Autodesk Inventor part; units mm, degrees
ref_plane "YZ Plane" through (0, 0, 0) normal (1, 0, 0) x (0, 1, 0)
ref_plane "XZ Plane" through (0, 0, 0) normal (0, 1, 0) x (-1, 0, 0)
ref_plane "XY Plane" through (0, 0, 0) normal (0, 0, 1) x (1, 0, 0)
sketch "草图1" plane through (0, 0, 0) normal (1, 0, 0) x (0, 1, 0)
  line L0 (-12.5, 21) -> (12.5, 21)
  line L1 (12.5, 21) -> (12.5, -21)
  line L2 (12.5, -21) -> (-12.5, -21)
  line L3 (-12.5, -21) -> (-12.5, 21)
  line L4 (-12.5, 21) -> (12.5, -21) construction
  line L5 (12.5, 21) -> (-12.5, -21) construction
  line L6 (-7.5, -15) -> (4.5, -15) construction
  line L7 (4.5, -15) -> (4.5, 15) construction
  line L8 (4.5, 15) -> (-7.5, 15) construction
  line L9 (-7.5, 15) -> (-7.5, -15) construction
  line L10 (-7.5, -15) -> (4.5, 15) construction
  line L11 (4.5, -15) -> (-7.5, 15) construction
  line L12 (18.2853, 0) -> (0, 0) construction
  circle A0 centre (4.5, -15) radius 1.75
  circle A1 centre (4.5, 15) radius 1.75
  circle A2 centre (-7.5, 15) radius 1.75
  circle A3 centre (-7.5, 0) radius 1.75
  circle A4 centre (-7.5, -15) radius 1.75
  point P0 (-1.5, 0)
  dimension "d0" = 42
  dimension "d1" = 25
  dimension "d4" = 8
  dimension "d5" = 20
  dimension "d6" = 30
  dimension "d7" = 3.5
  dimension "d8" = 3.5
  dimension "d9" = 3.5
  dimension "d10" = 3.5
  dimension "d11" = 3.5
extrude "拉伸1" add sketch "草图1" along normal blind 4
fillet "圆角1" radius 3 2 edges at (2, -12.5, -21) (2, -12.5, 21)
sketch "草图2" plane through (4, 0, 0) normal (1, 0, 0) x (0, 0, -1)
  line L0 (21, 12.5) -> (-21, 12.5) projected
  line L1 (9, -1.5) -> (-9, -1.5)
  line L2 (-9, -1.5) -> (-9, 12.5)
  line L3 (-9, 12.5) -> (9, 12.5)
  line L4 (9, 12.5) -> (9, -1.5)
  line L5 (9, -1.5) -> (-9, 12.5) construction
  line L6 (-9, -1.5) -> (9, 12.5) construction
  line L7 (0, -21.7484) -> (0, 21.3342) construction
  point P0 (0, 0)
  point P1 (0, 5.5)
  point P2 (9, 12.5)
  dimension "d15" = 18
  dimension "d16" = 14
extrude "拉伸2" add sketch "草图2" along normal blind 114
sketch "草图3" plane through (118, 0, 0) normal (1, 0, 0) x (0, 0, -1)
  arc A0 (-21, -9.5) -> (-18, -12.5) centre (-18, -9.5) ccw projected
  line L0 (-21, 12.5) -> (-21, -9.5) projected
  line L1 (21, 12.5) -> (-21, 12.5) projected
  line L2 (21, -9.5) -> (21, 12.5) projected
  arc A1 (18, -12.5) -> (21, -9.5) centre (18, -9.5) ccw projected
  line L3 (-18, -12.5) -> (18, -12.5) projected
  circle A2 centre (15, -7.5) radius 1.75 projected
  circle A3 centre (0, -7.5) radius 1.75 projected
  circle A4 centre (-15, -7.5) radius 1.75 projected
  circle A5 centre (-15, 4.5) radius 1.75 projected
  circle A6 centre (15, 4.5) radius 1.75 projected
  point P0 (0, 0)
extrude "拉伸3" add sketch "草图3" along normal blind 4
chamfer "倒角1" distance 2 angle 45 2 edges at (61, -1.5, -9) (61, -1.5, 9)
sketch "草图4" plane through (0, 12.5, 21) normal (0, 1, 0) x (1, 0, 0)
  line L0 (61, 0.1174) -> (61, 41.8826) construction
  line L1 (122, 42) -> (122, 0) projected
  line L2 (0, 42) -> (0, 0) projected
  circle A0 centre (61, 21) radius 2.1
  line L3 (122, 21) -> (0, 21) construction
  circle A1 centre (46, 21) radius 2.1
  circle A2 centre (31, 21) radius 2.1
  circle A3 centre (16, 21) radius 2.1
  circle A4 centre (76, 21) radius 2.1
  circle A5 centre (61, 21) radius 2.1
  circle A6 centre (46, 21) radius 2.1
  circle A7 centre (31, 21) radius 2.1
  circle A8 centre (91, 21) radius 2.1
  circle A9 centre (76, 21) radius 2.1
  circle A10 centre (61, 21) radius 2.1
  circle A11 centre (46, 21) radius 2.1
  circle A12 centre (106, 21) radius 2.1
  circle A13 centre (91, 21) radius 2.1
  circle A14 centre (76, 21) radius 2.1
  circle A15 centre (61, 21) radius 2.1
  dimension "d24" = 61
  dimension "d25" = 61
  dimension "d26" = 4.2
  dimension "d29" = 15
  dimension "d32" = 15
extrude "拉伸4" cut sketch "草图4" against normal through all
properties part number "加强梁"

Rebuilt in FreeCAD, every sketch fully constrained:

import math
import FreeCAD as App
import Part
import Sketcher


def edges_at(feature, points):
    """Names of the edges that pass closest to the given points."""
    edges = feature.Shape.Edges
    near = lambda p: min(range(len(edges)), key=lambda i: edges[i].distToShape(Part.Vertex(*p))[0])
    return sorted({f"Edge{near(p) + 1}" for p in points})

doc = App.newDocument("Part")
body = doc.addObject("PartDesign::Body", "Body")

sketch1 = body.newObject("Sketcher::SketchObject", "Sketch")
sketch1.AttachmentSupport = (doc.getObject("YZ_Plane"), [""])
sketch1.MapMode = "FlatFace"
sketch1.addGeometry(Part.LineSegment(App.Vector(12.5, 21, 0), App.Vector(-12.5, 21, 0)), False)
sketch1.addGeometry(Part.LineSegment(App.Vector(-12.5, 21, 0), App.Vector(-12.5, -21, 0)), False)
sketch1.addGeometry(Part.LineSegment(App.Vector(-12.5, -21, 0), App.Vector(12.5, -21, 0)), False)
sketch1.addGeometry(Part.LineSegment(App.Vector(12.5, -21, 0), App.Vector(12.5, 21, 0)), False)
sketch1.addGeometry(Part.Circle(App.Vector(-7.5, -15, 0), App.Vector(0, 0, 1), 1.75), False)
sketch1.addGeometry(Part.Circle(App.Vector(4.5, -15, 0), App.Vector(0, 0, 1), 1.75), False)
sketch1.addGeometry(Part.Circle(App.Vector(-7.5, 0, 0), App.Vector(0, 0, 1), 1.75), False)
sketch1.addGeometry(Part.Circle(App.Vector(-7.5, 15, 0), App.Vector(0, 0, 1), 1.75), False)
sketch1.addGeometry(Part.Circle(App.Vector(4.5, 15, 0), App.Vector(0, 0, 1), 1.75), False)
sketch1.addConstraint(Sketcher.Constraint("Coincident", 0, 2, 1, 1))
sketch1.addConstraint(Sketcher.Constraint("Coincident", 1, 2, 2, 1))
sketch1.addConstraint(Sketcher.Constraint("Coincident", 2, 2, 3, 1))
sketch1.addConstraint(Sketcher.Constraint("Coincident", 3, 2, 0, 1))
sketch1.addConstraint(Sketcher.Constraint("Horizontal", 0))
sketch1.addConstraint(Sketcher.Constraint("Vertical", 1))
sketch1.addConstraint(Sketcher.Constraint("Horizontal", 2))
sketch1.addConstraint(Sketcher.Constraint("Vertical", 3))
sketch1.addConstraint(Sketcher.Constraint("Equal", 4, 5))
sketch1.addConstraint(Sketcher.Constraint("Equal", 5, 6))
sketch1.addConstraint(Sketcher.Constraint("Equal", 6, 7))
sketch1.addConstraint(Sketcher.Constraint("Equal", 7, 8))
sketch1.addConstraint(Sketcher.Constraint("Symmetric", 0, 2, 2, 2, -1, 1))
sketch1.addConstraint(Sketcher.Constraint("Symmetric", 4, 3, 7, 3, -1))
sketch1.addConstraint(Sketcher.Constraint("Symmetric", 5, 3, 8, 3, -1))
sketch1.addConstraint(Sketcher.Constraint("PointOnObject", 6, 3, -1))
sketch1.addConstraint(Sketcher.Constraint("Horizontal", 4, 3, 5, 3))
sketch1.addConstraint(Sketcher.Constraint("Vertical", 4, 3, 6, 3))
sketch1.addConstraint(Sketcher.Constraint("Diameter", 4, 3.5))
sketch1.addConstraint(Sketcher.Constraint("DistanceX", 0, 2, 0, 1, 25.0))
sketch1.addConstraint(Sketcher.Constraint("DistanceY", 1, 2, 1, 1, 42.0))
sketch1.addConstraint(Sketcher.Constraint("DistanceY", 4, 3, 7, 3, 30.0))
sketch1.addConstraint(Sketcher.Constraint("DistanceX", 5, 3, 2, 2, 8.0))
sketch1.addConstraint(Sketcher.Constraint("DistanceX", 4, 3, 2, 2, 20.0))
pad1 = body.newObject("PartDesign::Pad", "Pad")
pad1.Profile = sketch1
pad1.Length = 4
doc.recompute()

fillet = body.newObject("PartDesign::Fillet", "Fillet")
fillet.Base = (pad1, edges_at(pad1, [(2, -12.5, -21), (2, -12.5, 21)]))
fillet.Radius = 3

sketch2 = body.newObject("Sketcher::SketchObject", "Sketch001")
sketch2.AttachmentSupport = (doc.getObject("YZ_Plane"), [""])
sketch2.MapMode = "FlatFace"
sketch2.AttachmentOffset = App.Placement(App.Vector(0, 0, 4), App.Rotation())
sketch2.addGeometry(Part.LineSegment(App.Vector(-1.5, -9, 0), App.Vector(12.5, -9, 0)), False)
sketch2.addGeometry(Part.LineSegment(App.Vector(12.5, -9, 0), App.Vector(12.5, 9, 0)), False)
sketch2.addGeometry(Part.LineSegment(App.Vector(12.5, 9, 0), App.Vector(-1.5, 9, 0)), False)
sketch2.addGeometry(Part.LineSegment(App.Vector(-1.5, 9, 0), App.Vector(-1.5, -9, 0)), False)
sketch2.addConstraint(Sketcher.Constraint("Coincident", 0, 2, 1, 1))
sketch2.addConstraint(Sketcher.Constraint("Coincident", 1, 2, 2, 1))
sketch2.addConstraint(Sketcher.Constraint("Coincident", 2, 2, 3, 1))
sketch2.addConstraint(Sketcher.Constraint("Coincident", 3, 2, 0, 1))
sketch2.addConstraint(Sketcher.Constraint("Horizontal", 0))
sketch2.addConstraint(Sketcher.Constraint("Vertical", 1))
sketch2.addConstraint(Sketcher.Constraint("Horizontal", 2))
sketch2.addConstraint(Sketcher.Constraint("Vertical", 3))
sketch2.addConstraint(Sketcher.Constraint("DistanceX", 0, 1, 0, 2, 14.0))
sketch2.addConstraint(Sketcher.Constraint("DistanceY", 1, 1, 1, 2, 18.0))
sketch2.addConstraint(Sketcher.Constraint("DistanceY", 0, 2, -1, 1, 9.0))
sketch2.addConstraint(Sketcher.Constraint("DistanceX", -1, 1, 0, 2, 12.5))
pad2 = body.newObject("PartDesign::Pad", "Pad001")
pad2.Profile = sketch2
pad2.Length = 114

sketch3 = body.newObject("Sketcher::SketchObject", "Sketch002")
sketch3.AttachmentSupport = (doc.getObject("YZ_Plane"), [""])
sketch3.MapMode = "FlatFace"
sketch3.AttachmentOffset = App.Placement(App.Vector(0, 0, 118), App.Rotation())
sketch3.addGeometry(Part.LineSegment(App.Vector(12.5, 21, 0), App.Vector(-9.5, 21, 0)), False)
sketch3.addGeometry(Part.ArcOfCircle(Part.Circle(App.Vector(-9.5, 18, 0), App.Vector(0, 0, 1), 3), math.radians(90), math.radians(180)), False)
sketch3.addGeometry(Part.LineSegment(App.Vector(-12.5, 18, 0), App.Vector(-12.5, -18, 0)), False)
sketch3.addGeometry(Part.ArcOfCircle(Part.Circle(App.Vector(-9.5, -18, 0), App.Vector(0, 0, 1), 3), math.radians(180), math.radians(270)), False)
sketch3.addGeometry(Part.LineSegment(App.Vector(-9.5, -21, 0), App.Vector(12.5, -21, 0)), False)
sketch3.addGeometry(Part.LineSegment(App.Vector(12.5, -21, 0), App.Vector(12.5, 21, 0)), False)
sketch3.addGeometry(Part.Circle(App.Vector(-7.5, 15, 0), App.Vector(0, 0, 1), 1.75), False)
sketch3.addGeometry(Part.Circle(App.Vector(-7.5, 0, 0), App.Vector(0, 0, 1), 1.75), False)
sketch3.addGeometry(Part.Circle(App.Vector(-7.5, -15, 0), App.Vector(0, 0, 1), 1.75), False)
sketch3.addGeometry(Part.Circle(App.Vector(4.5, 15, 0), App.Vector(0, 0, 1), 1.75), False)
sketch3.addGeometry(Part.Circle(App.Vector(4.5, -15, 0), App.Vector(0, 0, 1), 1.75), False)
sketch3.addConstraint(Sketcher.Constraint("Tangent", 0, 2, 1, 1))
sketch3.addConstraint(Sketcher.Constraint("Tangent", 1, 2, 2, 1))
sketch3.addConstraint(Sketcher.Constraint("Tangent", 2, 2, 3, 1))
sketch3.addConstraint(Sketcher.Constraint("Tangent", 3, 2, 4, 1))
sketch3.addConstraint(Sketcher.Constraint("Coincident", 4, 2, 5, 1))
sketch3.addConstraint(Sketcher.Constraint("Coincident", 5, 2, 0, 1))
sketch3.addConstraint(Sketcher.Constraint("Horizontal", 0))
sketch3.addConstraint(Sketcher.Constraint("Vertical", 2))
sketch3.addConstraint(Sketcher.Constraint("Horizontal", 4))
sketch3.addConstraint(Sketcher.Constraint("Vertical", 5))
sketch3.addConstraint(Sketcher.Constraint("Equal", 1, 3))
sketch3.addConstraint(Sketcher.Constraint("Equal", 6, 7))
sketch3.addConstraint(Sketcher.Constraint("Equal", 7, 8))
sketch3.addConstraint(Sketcher.Constraint("Equal", 8, 9))
sketch3.addConstraint(Sketcher.Constraint("Equal", 9, 10))
sketch3.addConstraint(Sketcher.Constraint("Symmetric", 6, 3, 8, 3, -1))
sketch3.addConstraint(Sketcher.Constraint("Symmetric", 9, 3, 10, 3, -1))
sketch3.addConstraint(Sketcher.Constraint("PointOnObject", 7, 3, -1))
sketch3.addConstraint(Sketcher.Constraint("Horizontal", 6, 3, 9, 3))
sketch3.addConstraint(Sketcher.Constraint("Vertical", 6, 3, 7, 3))
sketch3.addConstraint(Sketcher.Constraint("Radius", 1, 3.0))
sketch3.addConstraint(Sketcher.Constraint("Diameter", 6, 3.5))
sketch3.addConstraint(Sketcher.Constraint("DistanceX", 0, 2, 0, 1, 22.0))
sketch3.addConstraint(Sketcher.Constraint("DistanceY", 2, 2, 2, 1, 36.0))
sketch3.addConstraint(Sketcher.Constraint("DistanceY", -1, 1, 1, 3, 18.0))
sketch3.addConstraint(Sketcher.Constraint("DistanceY", -1, 1, 6, 3, 15.0))
sketch3.addConstraint(Sketcher.Constraint("DistanceX", 1, 3, 6, 3, 2.0))
sketch3.addConstraint(Sketcher.Constraint("DistanceX", 6, 3, 9, 3, 12.0))
sketch3.addConstraint(Sketcher.Constraint("DistanceX", 1, 3, -1, 1, 9.5))
pad3 = body.newObject("PartDesign::Pad", "Pad002")
pad3.Profile = sketch3
pad3.Length = 4
doc.recompute()

chamfer = body.newObject("PartDesign::Chamfer", "Chamfer")
chamfer.Base = (pad3, edges_at(pad3, [(61, -1.5, -9), (61, -1.5, 9)]))
chamfer.Size = 2

sketch4 = body.newObject("Sketcher::SketchObject", "Sketch003")
sketch4.AttachmentSupport = (doc.getObject("XZ_Plane"), [""])
sketch4.MapMode = "FlatFace"
sketch4.AttachmentOffset = App.Placement(App.Vector(0, 0, -12.5), App.Rotation())
sketch4.addGeometry(Part.Circle(App.Vector(61, 0, 0), App.Vector(0, 0, 1), 2.1), False)
sketch4.addGeometry(Part.Circle(App.Vector(46, 0, 0), App.Vector(0, 0, 1), 2.1), False)
sketch4.addGeometry(Part.Circle(App.Vector(31, 0, 0), App.Vector(0, 0, 1), 2.1), False)
sketch4.addGeometry(Part.Circle(App.Vector(16, 0, 0), App.Vector(0, 0, 1), 2.1), False)
sketch4.addGeometry(Part.Circle(App.Vector(76, 0, 0), App.Vector(0, 0, 1), 2.1), False)
sketch4.addGeometry(Part.Circle(App.Vector(91, 0, 0), App.Vector(0, 0, 1), 2.1), False)
sketch4.addGeometry(Part.Circle(App.Vector(106, 0, 0), App.Vector(0, 0, 1), 2.1), False)
sketch4.addConstraint(Sketcher.Constraint("Equal", 0, 1))
sketch4.addConstraint(Sketcher.Constraint("Equal", 1, 2))
sketch4.addConstraint(Sketcher.Constraint("Equal", 2, 3))
sketch4.addConstraint(Sketcher.Constraint("Equal", 3, 4))
sketch4.addConstraint(Sketcher.Constraint("Equal", 4, 5))
sketch4.addConstraint(Sketcher.Constraint("Equal", 5, 6))
sketch4.addConstraint(Sketcher.Constraint("PointOnObject", 0, 3, -1))
sketch4.addConstraint(Sketcher.Constraint("PointOnObject", 1, 3, -1))
sketch4.addConstraint(Sketcher.Constraint("PointOnObject", 2, 3, -1))
sketch4.addConstraint(Sketcher.Constraint("PointOnObject", 3, 3, -1))
sketch4.addConstraint(Sketcher.Constraint("PointOnObject", 4, 3, -1))
sketch4.addConstraint(Sketcher.Constraint("PointOnObject", 5, 3, -1))
sketch4.addConstraint(Sketcher.Constraint("PointOnObject", 6, 3, -1))
sketch4.addConstraint(Sketcher.Constraint("Diameter", 0, 4.2))
sketch4.addConstraint(Sketcher.Constraint("DistanceX", -1, 1, 0, 3, 61.0))
sketch4.addConstraint(Sketcher.Constraint("DistanceX", 1, 3, 0, 3, 15.0))
sketch4.addConstraint(Sketcher.Constraint("DistanceX", 2, 3, 1, 3, 15.0))
sketch4.addConstraint(Sketcher.Constraint("DistanceX", 3, 3, 2, 3, 15.0))
sketch4.addConstraint(Sketcher.Constraint("DistanceX", 0, 3, 4, 3, 15.0))
sketch4.addConstraint(Sketcher.Constraint("DistanceX", 4, 3, 5, 3, 15.0))
sketch4.addConstraint(Sketcher.Constraint("DistanceX", 5, 3, 6, 3, 15.0))
pocket1 = body.newObject("PartDesign::Pocket", "Pocket")
pocket1.Profile = sketch4
pocket1.Type = "ThroughAll"
pocket1.Reversed = True

doc.recompute()
